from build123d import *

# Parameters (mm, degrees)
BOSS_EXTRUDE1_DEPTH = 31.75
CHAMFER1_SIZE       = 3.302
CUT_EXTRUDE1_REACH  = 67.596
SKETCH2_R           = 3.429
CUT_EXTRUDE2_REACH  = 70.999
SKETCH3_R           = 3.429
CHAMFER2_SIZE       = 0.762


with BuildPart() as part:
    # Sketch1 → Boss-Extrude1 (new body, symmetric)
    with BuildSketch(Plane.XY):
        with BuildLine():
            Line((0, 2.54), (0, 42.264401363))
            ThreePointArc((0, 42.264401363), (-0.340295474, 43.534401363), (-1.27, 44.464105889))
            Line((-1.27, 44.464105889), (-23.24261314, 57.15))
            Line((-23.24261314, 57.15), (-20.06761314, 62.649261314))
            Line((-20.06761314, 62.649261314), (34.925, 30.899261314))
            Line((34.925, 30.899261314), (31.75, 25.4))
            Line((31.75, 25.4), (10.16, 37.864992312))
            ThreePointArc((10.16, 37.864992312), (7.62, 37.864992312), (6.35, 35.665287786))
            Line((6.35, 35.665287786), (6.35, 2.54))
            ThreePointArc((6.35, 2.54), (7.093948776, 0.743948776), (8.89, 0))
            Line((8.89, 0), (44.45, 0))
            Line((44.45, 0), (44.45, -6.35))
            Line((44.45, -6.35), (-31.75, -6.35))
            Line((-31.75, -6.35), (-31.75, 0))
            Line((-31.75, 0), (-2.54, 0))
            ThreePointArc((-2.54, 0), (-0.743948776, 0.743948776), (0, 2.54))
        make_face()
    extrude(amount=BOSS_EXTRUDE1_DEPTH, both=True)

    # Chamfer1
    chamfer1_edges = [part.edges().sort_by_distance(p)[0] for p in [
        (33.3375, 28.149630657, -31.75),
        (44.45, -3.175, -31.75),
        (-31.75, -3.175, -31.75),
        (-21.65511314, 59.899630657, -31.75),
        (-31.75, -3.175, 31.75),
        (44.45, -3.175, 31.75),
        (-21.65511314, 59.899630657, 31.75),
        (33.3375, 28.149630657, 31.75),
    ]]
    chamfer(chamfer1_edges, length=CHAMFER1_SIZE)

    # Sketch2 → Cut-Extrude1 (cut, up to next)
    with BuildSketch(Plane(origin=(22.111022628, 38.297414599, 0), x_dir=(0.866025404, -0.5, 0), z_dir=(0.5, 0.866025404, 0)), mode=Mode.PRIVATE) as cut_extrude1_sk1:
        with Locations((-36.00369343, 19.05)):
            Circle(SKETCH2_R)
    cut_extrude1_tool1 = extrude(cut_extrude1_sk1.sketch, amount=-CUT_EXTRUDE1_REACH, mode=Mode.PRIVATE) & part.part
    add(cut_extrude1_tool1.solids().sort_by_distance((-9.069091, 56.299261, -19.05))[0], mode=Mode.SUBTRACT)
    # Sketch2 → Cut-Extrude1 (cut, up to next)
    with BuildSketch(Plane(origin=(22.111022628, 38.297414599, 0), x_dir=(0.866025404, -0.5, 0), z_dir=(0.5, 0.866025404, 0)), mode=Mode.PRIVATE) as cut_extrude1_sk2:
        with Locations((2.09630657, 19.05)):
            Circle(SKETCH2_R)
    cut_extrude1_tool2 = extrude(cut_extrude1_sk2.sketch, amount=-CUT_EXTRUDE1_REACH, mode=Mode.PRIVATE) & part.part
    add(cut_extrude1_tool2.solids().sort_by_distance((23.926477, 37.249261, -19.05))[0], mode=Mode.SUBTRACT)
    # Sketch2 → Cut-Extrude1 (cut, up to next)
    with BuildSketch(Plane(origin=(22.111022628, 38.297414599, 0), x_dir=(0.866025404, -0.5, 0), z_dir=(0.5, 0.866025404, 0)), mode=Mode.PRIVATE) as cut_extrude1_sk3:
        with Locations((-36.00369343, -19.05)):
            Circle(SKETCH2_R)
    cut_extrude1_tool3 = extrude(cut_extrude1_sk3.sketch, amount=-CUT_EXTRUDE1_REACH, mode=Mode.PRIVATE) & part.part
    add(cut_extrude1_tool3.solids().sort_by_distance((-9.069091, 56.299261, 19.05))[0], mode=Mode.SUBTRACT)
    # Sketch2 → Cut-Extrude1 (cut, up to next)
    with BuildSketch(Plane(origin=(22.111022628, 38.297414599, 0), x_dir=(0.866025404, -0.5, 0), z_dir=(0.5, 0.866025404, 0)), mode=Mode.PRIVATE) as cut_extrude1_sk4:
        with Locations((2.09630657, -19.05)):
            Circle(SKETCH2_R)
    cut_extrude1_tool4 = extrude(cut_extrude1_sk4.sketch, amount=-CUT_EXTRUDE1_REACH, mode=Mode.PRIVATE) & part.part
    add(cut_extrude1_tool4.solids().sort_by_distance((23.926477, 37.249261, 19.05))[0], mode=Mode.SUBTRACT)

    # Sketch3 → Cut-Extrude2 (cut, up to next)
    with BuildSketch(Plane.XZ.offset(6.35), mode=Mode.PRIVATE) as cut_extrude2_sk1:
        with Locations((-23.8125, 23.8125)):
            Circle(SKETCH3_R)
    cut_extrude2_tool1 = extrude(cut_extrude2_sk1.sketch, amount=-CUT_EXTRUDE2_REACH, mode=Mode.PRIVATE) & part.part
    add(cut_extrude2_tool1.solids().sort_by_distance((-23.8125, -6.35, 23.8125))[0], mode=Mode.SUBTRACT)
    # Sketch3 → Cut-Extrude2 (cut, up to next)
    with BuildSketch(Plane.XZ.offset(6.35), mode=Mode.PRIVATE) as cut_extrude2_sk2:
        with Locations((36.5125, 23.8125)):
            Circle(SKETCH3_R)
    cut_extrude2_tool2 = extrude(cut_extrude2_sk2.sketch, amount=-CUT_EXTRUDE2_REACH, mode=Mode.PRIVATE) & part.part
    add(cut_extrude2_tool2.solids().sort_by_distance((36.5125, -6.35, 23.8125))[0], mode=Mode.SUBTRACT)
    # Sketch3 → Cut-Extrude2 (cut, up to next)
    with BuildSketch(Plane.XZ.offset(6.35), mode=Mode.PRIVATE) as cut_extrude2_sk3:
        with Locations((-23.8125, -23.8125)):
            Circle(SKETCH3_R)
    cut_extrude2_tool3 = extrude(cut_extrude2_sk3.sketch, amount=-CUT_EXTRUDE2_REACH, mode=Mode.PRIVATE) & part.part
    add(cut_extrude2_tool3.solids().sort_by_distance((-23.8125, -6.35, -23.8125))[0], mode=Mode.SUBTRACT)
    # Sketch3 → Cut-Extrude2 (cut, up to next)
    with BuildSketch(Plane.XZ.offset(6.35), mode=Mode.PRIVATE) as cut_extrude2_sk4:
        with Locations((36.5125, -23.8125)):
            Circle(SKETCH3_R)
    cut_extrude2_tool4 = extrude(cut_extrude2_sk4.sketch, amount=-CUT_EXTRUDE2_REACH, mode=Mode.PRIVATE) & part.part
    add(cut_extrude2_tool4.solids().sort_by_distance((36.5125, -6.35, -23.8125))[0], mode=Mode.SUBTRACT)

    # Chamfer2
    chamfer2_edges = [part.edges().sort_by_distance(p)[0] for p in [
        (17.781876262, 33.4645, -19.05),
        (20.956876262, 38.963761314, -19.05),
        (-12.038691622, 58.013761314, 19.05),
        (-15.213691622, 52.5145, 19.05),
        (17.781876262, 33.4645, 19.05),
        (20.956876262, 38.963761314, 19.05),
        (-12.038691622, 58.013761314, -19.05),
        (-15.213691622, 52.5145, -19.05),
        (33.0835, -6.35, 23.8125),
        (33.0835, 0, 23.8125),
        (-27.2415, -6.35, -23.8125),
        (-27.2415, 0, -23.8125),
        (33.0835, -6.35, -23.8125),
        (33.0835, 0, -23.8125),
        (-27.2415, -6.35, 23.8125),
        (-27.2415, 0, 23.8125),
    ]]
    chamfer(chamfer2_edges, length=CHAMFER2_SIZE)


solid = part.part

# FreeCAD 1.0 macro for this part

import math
import FreeCAD as App
import Part
import Sketcher
from FreeCAD import Vector
Q = App.Units.Quantity


def edges_at(feature, points):
    """Names of the edges that pass closest to the given points."""
    edges = feature.Shape.Edges
    near = lambda p: min(range(len(edges)), key=lambda i: edges[i].distToShape(Part.Vertex(*p))[0])
    return sorted({f"Edge{near(p) + 1}" for p in points})

doc = App.newDocument("Part")
body = doc.addObject("PartDesign::Body", "Body")

# Sketch on XY plane
sketch1 = body.newObject("Sketcher::SketchObject", "Sketch")
sketch1.AttachmentSupport = (doc.getObject("XY_Plane"), [""])
sketch1.MapMode = "FlatFace"
sketch1.addGeometry(Part.LineSegment(Vector(0, 42.3, 0), Vector(0, 2.5, 0)), False)
sketch1.addGeometry(Part.ArcOfCircle(Part.Circle(Vector(-2.5, 2.5, 0), Vector(0, 0, 1), 2.5), math.radians(-90), math.radians(0)), False)
sketch1.addGeometry(Part.LineSegment(Vector(-2.5, 0, 0), Vector(-31.8, 0, 0)), False)
sketch1.addGeometry(Part.LineSegment(Vector(-31.8, 0, 0), Vector(-31.8, -6.3, 0)), False)
sketch1.addGeometry(Part.LineSegment(Vector(-31.8, -6.3, 0), Vector(44.5, -6.3, 0)), False)
sketch1.addGeometry(Part.LineSegment(Vector(44.5, -6.3, 0), Vector(44.5, 0, 0)), False)
sketch1.addGeometry(Part.LineSegment(Vector(44.5, 0, 0), Vector(8.9, 0, 0)), False)
sketch1.addGeometry(Part.ArcOfCircle(Part.Circle(Vector(8.9, 2.5, 0), Vector(0, 0, 1), 2.5), math.radians(-180), math.radians(-90)), False)
sketch1.addGeometry(Part.LineSegment(Vector(6.3, 2.5, 0), Vector(6.3, 35.7, 0)), False)
sketch1.addGeometry(Part.ArcOfCircle(Part.Circle(Vector(8.9, 35.7, 0), Vector(0, 0, 1), 2.5), math.radians(60), math.radians(180)), False)
sketch1.addGeometry(Part.LineSegment(Vector(10.2, 37.9, 0), Vector(31.8, 25.4, 0)), False)
sketch1.addGeometry(Part.LineSegment(Vector(31.8, 25.4, 0), Vector(34.9, 30.9, 0)), False)
sketch1.addGeometry(Part.LineSegment(Vector(34.9, 30.9, 0), Vector(-20.1, 62.6, 0)), False)
sketch1.addGeometry(Part.LineSegment(Vector(-20.1, 62.6, 0), Vector(-23.2, 57.1, 0)), False)
sketch1.addGeometry(Part.LineSegment(Vector(-23.2, 57.1, 0), Vector(-1.3, 44.5, 0)), False)
sketch1.addGeometry(Part.ArcOfCircle(Part.Circle(Vector(-2.5, 42.3, 0), Vector(0, 0, 1), 2.5), math.radians(0), math.radians(60)), False)
sketch1.addConstraint(Sketcher.Constraint("Tangent", 0, 2, 1, 2))
sketch1.addConstraint(Sketcher.Constraint("Tangent", 1, 1, 2, 1))
sketch1.addConstraint(Sketcher.Constraint("Coincident", 2, 2, 3, 1))
sketch1.addConstraint(Sketcher.Constraint("Coincident", 3, 2, 4, 1))
sketch1.addConstraint(Sketcher.Constraint("Coincident", 4, 2, 5, 1))
sketch1.addConstraint(Sketcher.Constraint("Coincident", 5, 2, 6, 1))
sketch1.addConstraint(Sketcher.Constraint("Tangent", 6, 2, 7, 2))
sketch1.addConstraint(Sketcher.Constraint("Tangent", 7, 1, 8, 1))
sketch1.addConstraint(Sketcher.Constraint("Tangent", 8, 2, 9, 2))
sketch1.addConstraint(Sketcher.Constraint("Tangent", 9, 1, 10, 1))
sketch1.addConstraint(Sketcher.Constraint("Coincident", 10, 2, 11, 1))
sketch1.addConstraint(Sketcher.Constraint("Coincident", 11, 2, 12, 1))
sketch1.addConstraint(Sketcher.Constraint("Coincident", 12, 2, 13, 1))
sketch1.addConstraint(Sketcher.Constraint("Coincident", 13, 2, 14, 1))
sketch1.addConstraint(Sketcher.Constraint("Tangent", 14, 2, 15, 2))
sketch1.addConstraint(Sketcher.Constraint("Tangent", 15, 1, 0, 1))
sketch1.addConstraint(Sketcher.Constraint("Vertical", 0))
sketch1.addConstraint(Sketcher.Constraint("Horizontal", 2))
sketch1.addConstraint(Sketcher.Constraint("Vertical", 3))
sketch1.addConstraint(Sketcher.Constraint("Horizontal", 4))
sketch1.addConstraint(Sketcher.Constraint("Vertical", 5))
sketch1.addConstraint(Sketcher.Constraint("Horizontal", 6))
sketch1.addConstraint(Sketcher.Constraint("Vertical", 8))
sketch1.addConstraint(Sketcher.Constraint("Equal", 1, 7))
sketch1.addConstraint(Sketcher.Constraint("Equal", 7, 9))
sketch1.addConstraint(Sketcher.Constraint("Equal", 9, 15))
sketch1.addConstraint(Sketcher.Constraint("PointOnObject", 0, 2, -2))
sketch1.addConstraint(Sketcher.Constraint("PointOnObject", 1, 1, -1))
sketch1.addConstraint(Sketcher.Constraint("PointOnObject", 5, 2, -1))
sketch1.addConstraint(Sketcher.Constraint("Perpendicular", 10, 11))
sketch1.addConstraint(Sketcher.Constraint("Perpendicular", 11, 12))
sketch1.addConstraint(Sketcher.Constraint("Perpendicular", 12, 13))
sketch1.addConstraint(Sketcher.Constraint("Perpendicular", 13, 14))
sketch1.addConstraint(Sketcher.Constraint("Equal", 11, 13))
sketch1.addConstraint(Sketcher.Constraint("Radius", 1, Q("0.1 in")))
sketch1.addConstraint(Sketcher.Constraint("DistanceX", 4, 1, 4, 2, Q("3 in")))
sketch1.addConstraint(Sketcher.Constraint("DistanceX", 6, 2, 6, 1, Q("1.4 in")))
sketch1.addConstraint(Sketcher.Constraint("DistanceY", -1, 1, 10, 2, Q("1 in")))
sketch1.addConstraint(Sketcher.Constraint("Angle", 10, Q("-30 deg")))
sketch1.addConstraint(Sketcher.Constraint("DistanceX", 8, 2, 10, 2, Q("1 in")))
sketch1.addConstraint(Sketcher.Constraint("Distance", 12, Q("2.5 in")))
sketch1.addConstraint(Sketcher.Constraint("DistanceX", 2, 2, 2, 1, Q("1.15 in")))
sketch1.addConstraint(Sketcher.Constraint("DistanceY", 3, 2, 3, 1, Q("0.25 in")))
sketch1.addConstraint(Sketcher.Constraint("Distance", 11, Q("0.25 in")))
pad1 = body.newObject("PartDesign::Pad", "Pad")
pad1.Profile = sketch1
pad1.Length = Q("2.5 in")
pad1.Midplane = True
doc.recompute()

chamfer = body.newObject("PartDesign::Chamfer", "Chamfer")
chamfer.Base = (pad1, edges_at(pad1, [
    (33.337, 28.15, -31.75),
    (44.45, -3.175, -31.75),
    (-31.75, -3.175, -31.75),
    (-21.655, 59.9, -31.75),
    (-31.75, -3.175, 31.75),
    (44.45, -3.175, 31.75),
    (-21.655, 59.9, 31.75),
    (33.337, 28.15, 31.75),
]))
chamfer.Size = Q("0.13 in")

# Sketch on an angled plane
sketch2 = body.newObject("Sketcher::SketchObject", "Sketch001")
sketch2.Placement = App.Placement(Vector(22.111023, 38.297415, 0), App.Rotation(Vector(0.866025404, -0.5, 0), Vector(0, 0, -1), Vector(0.5, 0.866025404, 0), "ZXY"))
sketch2.addGeometry(Part.Circle(Vector(-36, 19.1, 0), Vector(0, 0, 1), 3.4), False)
sketch2.addConstraint(Sketcher.Constraint("Diameter", 0, Q("0.27 in")))
sketch2.addConstraint(Sketcher.Constraint("DistanceY", -1, 1, 0, 3, Q("0.75 in")))
sketch2.addConstraint(Sketcher.Constraint("DistanceX", 0, 3, -1, 1, Q("36.003693 mm")))
pocket1 = body.newObject("PartDesign::Pocket", "Pocket")
pocket1.Profile = sketch2
pocket1.Type = "UpToFirst"

# Sketch on an angled plane
sketch3 = body.newObject("Sketcher::SketchObject", "Sketch002")
sketch3.Placement = App.Placement(Vector(22.111023, 38.297415, 0), App.Rotation(Vector(0.866025404, -0.5, 0), Vector(0, 0, -1), Vector(0.5, 0.866025404, 0), "ZXY"))
sketch3.addGeometry(Part.Circle(Vector(2.1, 19.1, 0), Vector(0, 0, 1), 3.4), False)
sketch3.addConstraint(Sketcher.Constraint("Diameter", 0, Q("0.27 in")))
sketch3.addConstraint(Sketcher.Constraint("DistanceY", -1, 1, 0, 3, Q("0.75 in")))
sketch3.addConstraint(Sketcher.Constraint("DistanceX", -1, 1, 0, 3, Q("2.096307 mm")))
pocket2 = body.newObject("PartDesign::Pocket", "Pocket001")
pocket2.Profile = sketch3
pocket2.Type = "UpToFirst"

# Sketch on an angled plane
sketch4 = body.newObject("Sketcher::SketchObject", "Sketch003")
sketch4.Placement = App.Placement(Vector(22.111023, 38.297415, 0), App.Rotation(Vector(0.866025404, -0.5, 0), Vector(0, 0, -1), Vector(0.5, 0.866025404, 0), "ZXY"))
sketch4.addGeometry(Part.Circle(Vector(-36, -19.1, 0), Vector(0, 0, 1), 3.4), False)
sketch4.addConstraint(Sketcher.Constraint("Diameter", 0, Q("0.27 in")))
sketch4.addConstraint(Sketcher.Constraint("DistanceY", 0, 3, -1, 1, Q("0.75 in")))
sketch4.addConstraint(Sketcher.Constraint("DistanceX", 0, 3, -1, 1, Q("36.003693 mm")))
pocket3 = body.newObject("PartDesign::Pocket", "Pocket002")
pocket3.Profile = sketch4
pocket3.Type = "UpToFirst"

# Sketch on an angled plane
sketch5 = body.newObject("Sketcher::SketchObject", "Sketch004")
sketch5.Placement = App.Placement(Vector(22.111023, 38.297415, 0), App.Rotation(Vector(0.866025404, -0.5, 0), Vector(0, 0, -1), Vector(0.5, 0.866025404, 0), "ZXY"))
sketch5.addGeometry(Part.Circle(Vector(2.1, -19.1, 0), Vector(0, 0, 1), 3.4), False)
sketch5.addConstraint(Sketcher.Constraint("Diameter", 0, Q("0.27 in")))
sketch5.addConstraint(Sketcher.Constraint("DistanceY", 0, 3, -1, 1, Q("0.75 in")))
sketch5.addConstraint(Sketcher.Constraint("DistanceX", -1, 1, 0, 3, Q("2.096307 mm")))
pocket4 = body.newObject("PartDesign::Pocket", "Pocket003")
pocket4.Profile = sketch5
pocket4.Type = "UpToFirst"

# Sketch on XZ plane
sketch6 = body.newObject("Sketcher::SketchObject", "Sketch005")
sketch6.AttachmentSupport = (doc.getObject("XZ_Plane"), [""])
sketch6.MapMode = "FlatFace"
sketch6.AttachmentOffset = App.Placement(Vector(0, 0, 0.25 * 25.4), App.Rotation())
sketch6.addGeometry(Part.Circle(Vector(-23.8, 23.8, 0), Vector(0, 0, 1), 3.4), False)
sketch6.addConstraint(Sketcher.Constraint("Diameter", 0, Q("0.27 in")))
sketch6.addConstraint(Sketcher.Constraint("DistanceX", 0, 3, -1, 1, Q("0.9375 in")))
sketch6.addConstraint(Sketcher.Constraint("DistanceY", -1, 1, 0, 3, Q("0.9375 in")))
pocket5 = body.newObject("PartDesign::Pocket", "Pocket004")
pocket5.Profile = sketch6
pocket5.Type = "UpToFirst"

# Sketch on XZ plane
sketch7 = body.newObject("Sketcher::SketchObject", "Sketch006")
sketch7.AttachmentSupport = (doc.getObject("XZ_Plane"), [""])
sketch7.MapMode = "FlatFace"
sketch7.AttachmentOffset = App.Placement(Vector(0, 0, 0.25 * 25.4), App.Rotation())
sketch7.addGeometry(Part.Circle(Vector(36.5, 23.8, 0), Vector(0, 0, 1), 3.4), False)
sketch7.addConstraint(Sketcher.Constraint("Diameter", 0, Q("0.27 in")))
sketch7.addConstraint(Sketcher.Constraint("DistanceX", -1, 1, 0, 3, Q("1.4375 in")))
sketch7.addConstraint(Sketcher.Constraint("DistanceY", -1, 1, 0, 3, Q("0.9375 in")))
pocket6 = body.newObject("PartDesign::Pocket", "Pocket005")
pocket6.Profile = sketch7
pocket6.Type = "UpToFirst"

# Sketch on XZ plane
sketch8 = body.newObject("Sketcher::SketchObject", "Sketch007")
sketch8.AttachmentSupport = (doc.getObject("XZ_Plane"), [""])
sketch8.MapMode = "FlatFace"
sketch8.AttachmentOffset = App.Placement(Vector(0, 0, 0.25 * 25.4), App.Rotation())
sketch8.addGeometry(Part.Circle(Vector(-23.8, -23.8, 0), Vector(0, 0, 1), 3.4), False)
sketch8.addConstraint(Sketcher.Constraint("Diameter", 0, Q("0.27 in")))
sketch8.addConstraint(Sketcher.Constraint("DistanceX", 0, 3, -1, 1, Q("0.9375 in")))
sketch8.addConstraint(Sketcher.Constraint("DistanceY", 0, 3, -1, 1, Q("0.9375 in")))
pocket7 = body.newObject("PartDesign::Pocket", "Pocket006")
pocket7.Profile = sketch8
pocket7.Type = "UpToFirst"

# Sketch on XZ plane
sketch9 = body.newObject("Sketcher::SketchObject", "Sketch008")
sketch9.AttachmentSupport = (doc.getObject("XZ_Plane"), [""])
sketch9.MapMode = "FlatFace"
sketch9.AttachmentOffset = App.Placement(Vector(0, 0, 0.25 * 25.4), App.Rotation())
sketch9.addGeometry(Part.Circle(Vector(36.5, -23.8, 0), Vector(0, 0, 1), 3.4), False)
sketch9.addConstraint(Sketcher.Constraint("Diameter", 0, Q("0.27 in")))
sketch9.addConstraint(Sketcher.Constraint("DistanceX", -1, 1, 0, 3, Q("1.4375 in")))
sketch9.addConstraint(Sketcher.Constraint("DistanceY", 0, 3, -1, 1, Q("0.9375 in")))
pocket8 = body.newObject("PartDesign::Pocket", "Pocket007")
pocket8.Profile = sketch9
pocket8.Type = "UpToFirst"
doc.recompute()

chamfer2 = body.newObject("PartDesign::Chamfer", "Chamfer001")
chamfer2.Base = (pocket8, edges_at(pocket8, [
    (17.782, 33.464, -19.05),
    (20.957, 38.964, -19.05),
    (-12.039, 58.014, 19.05),
    (-15.214, 52.514, 19.05),
    (17.782, 33.464, 19.05),
    (20.957, 38.964, 19.05),
    (-12.039, 58.014, -19.05),
    (-15.214, 52.514, -19.05),
    (33.084, -6.35, 23.812),
    (33.084, 0, 23.812),
    (-27.241, -6.35, -23.812),
    (-27.241, 0, -23.812),
    (33.084, -6.35, -23.812),
    (33.084, 0, -23.812),
    (-27.241, -6.35, 23.812),
    (-27.241, 0, 23.812),
]))
chamfer2.Size = Q("0.03 in")

doc.recompute()
